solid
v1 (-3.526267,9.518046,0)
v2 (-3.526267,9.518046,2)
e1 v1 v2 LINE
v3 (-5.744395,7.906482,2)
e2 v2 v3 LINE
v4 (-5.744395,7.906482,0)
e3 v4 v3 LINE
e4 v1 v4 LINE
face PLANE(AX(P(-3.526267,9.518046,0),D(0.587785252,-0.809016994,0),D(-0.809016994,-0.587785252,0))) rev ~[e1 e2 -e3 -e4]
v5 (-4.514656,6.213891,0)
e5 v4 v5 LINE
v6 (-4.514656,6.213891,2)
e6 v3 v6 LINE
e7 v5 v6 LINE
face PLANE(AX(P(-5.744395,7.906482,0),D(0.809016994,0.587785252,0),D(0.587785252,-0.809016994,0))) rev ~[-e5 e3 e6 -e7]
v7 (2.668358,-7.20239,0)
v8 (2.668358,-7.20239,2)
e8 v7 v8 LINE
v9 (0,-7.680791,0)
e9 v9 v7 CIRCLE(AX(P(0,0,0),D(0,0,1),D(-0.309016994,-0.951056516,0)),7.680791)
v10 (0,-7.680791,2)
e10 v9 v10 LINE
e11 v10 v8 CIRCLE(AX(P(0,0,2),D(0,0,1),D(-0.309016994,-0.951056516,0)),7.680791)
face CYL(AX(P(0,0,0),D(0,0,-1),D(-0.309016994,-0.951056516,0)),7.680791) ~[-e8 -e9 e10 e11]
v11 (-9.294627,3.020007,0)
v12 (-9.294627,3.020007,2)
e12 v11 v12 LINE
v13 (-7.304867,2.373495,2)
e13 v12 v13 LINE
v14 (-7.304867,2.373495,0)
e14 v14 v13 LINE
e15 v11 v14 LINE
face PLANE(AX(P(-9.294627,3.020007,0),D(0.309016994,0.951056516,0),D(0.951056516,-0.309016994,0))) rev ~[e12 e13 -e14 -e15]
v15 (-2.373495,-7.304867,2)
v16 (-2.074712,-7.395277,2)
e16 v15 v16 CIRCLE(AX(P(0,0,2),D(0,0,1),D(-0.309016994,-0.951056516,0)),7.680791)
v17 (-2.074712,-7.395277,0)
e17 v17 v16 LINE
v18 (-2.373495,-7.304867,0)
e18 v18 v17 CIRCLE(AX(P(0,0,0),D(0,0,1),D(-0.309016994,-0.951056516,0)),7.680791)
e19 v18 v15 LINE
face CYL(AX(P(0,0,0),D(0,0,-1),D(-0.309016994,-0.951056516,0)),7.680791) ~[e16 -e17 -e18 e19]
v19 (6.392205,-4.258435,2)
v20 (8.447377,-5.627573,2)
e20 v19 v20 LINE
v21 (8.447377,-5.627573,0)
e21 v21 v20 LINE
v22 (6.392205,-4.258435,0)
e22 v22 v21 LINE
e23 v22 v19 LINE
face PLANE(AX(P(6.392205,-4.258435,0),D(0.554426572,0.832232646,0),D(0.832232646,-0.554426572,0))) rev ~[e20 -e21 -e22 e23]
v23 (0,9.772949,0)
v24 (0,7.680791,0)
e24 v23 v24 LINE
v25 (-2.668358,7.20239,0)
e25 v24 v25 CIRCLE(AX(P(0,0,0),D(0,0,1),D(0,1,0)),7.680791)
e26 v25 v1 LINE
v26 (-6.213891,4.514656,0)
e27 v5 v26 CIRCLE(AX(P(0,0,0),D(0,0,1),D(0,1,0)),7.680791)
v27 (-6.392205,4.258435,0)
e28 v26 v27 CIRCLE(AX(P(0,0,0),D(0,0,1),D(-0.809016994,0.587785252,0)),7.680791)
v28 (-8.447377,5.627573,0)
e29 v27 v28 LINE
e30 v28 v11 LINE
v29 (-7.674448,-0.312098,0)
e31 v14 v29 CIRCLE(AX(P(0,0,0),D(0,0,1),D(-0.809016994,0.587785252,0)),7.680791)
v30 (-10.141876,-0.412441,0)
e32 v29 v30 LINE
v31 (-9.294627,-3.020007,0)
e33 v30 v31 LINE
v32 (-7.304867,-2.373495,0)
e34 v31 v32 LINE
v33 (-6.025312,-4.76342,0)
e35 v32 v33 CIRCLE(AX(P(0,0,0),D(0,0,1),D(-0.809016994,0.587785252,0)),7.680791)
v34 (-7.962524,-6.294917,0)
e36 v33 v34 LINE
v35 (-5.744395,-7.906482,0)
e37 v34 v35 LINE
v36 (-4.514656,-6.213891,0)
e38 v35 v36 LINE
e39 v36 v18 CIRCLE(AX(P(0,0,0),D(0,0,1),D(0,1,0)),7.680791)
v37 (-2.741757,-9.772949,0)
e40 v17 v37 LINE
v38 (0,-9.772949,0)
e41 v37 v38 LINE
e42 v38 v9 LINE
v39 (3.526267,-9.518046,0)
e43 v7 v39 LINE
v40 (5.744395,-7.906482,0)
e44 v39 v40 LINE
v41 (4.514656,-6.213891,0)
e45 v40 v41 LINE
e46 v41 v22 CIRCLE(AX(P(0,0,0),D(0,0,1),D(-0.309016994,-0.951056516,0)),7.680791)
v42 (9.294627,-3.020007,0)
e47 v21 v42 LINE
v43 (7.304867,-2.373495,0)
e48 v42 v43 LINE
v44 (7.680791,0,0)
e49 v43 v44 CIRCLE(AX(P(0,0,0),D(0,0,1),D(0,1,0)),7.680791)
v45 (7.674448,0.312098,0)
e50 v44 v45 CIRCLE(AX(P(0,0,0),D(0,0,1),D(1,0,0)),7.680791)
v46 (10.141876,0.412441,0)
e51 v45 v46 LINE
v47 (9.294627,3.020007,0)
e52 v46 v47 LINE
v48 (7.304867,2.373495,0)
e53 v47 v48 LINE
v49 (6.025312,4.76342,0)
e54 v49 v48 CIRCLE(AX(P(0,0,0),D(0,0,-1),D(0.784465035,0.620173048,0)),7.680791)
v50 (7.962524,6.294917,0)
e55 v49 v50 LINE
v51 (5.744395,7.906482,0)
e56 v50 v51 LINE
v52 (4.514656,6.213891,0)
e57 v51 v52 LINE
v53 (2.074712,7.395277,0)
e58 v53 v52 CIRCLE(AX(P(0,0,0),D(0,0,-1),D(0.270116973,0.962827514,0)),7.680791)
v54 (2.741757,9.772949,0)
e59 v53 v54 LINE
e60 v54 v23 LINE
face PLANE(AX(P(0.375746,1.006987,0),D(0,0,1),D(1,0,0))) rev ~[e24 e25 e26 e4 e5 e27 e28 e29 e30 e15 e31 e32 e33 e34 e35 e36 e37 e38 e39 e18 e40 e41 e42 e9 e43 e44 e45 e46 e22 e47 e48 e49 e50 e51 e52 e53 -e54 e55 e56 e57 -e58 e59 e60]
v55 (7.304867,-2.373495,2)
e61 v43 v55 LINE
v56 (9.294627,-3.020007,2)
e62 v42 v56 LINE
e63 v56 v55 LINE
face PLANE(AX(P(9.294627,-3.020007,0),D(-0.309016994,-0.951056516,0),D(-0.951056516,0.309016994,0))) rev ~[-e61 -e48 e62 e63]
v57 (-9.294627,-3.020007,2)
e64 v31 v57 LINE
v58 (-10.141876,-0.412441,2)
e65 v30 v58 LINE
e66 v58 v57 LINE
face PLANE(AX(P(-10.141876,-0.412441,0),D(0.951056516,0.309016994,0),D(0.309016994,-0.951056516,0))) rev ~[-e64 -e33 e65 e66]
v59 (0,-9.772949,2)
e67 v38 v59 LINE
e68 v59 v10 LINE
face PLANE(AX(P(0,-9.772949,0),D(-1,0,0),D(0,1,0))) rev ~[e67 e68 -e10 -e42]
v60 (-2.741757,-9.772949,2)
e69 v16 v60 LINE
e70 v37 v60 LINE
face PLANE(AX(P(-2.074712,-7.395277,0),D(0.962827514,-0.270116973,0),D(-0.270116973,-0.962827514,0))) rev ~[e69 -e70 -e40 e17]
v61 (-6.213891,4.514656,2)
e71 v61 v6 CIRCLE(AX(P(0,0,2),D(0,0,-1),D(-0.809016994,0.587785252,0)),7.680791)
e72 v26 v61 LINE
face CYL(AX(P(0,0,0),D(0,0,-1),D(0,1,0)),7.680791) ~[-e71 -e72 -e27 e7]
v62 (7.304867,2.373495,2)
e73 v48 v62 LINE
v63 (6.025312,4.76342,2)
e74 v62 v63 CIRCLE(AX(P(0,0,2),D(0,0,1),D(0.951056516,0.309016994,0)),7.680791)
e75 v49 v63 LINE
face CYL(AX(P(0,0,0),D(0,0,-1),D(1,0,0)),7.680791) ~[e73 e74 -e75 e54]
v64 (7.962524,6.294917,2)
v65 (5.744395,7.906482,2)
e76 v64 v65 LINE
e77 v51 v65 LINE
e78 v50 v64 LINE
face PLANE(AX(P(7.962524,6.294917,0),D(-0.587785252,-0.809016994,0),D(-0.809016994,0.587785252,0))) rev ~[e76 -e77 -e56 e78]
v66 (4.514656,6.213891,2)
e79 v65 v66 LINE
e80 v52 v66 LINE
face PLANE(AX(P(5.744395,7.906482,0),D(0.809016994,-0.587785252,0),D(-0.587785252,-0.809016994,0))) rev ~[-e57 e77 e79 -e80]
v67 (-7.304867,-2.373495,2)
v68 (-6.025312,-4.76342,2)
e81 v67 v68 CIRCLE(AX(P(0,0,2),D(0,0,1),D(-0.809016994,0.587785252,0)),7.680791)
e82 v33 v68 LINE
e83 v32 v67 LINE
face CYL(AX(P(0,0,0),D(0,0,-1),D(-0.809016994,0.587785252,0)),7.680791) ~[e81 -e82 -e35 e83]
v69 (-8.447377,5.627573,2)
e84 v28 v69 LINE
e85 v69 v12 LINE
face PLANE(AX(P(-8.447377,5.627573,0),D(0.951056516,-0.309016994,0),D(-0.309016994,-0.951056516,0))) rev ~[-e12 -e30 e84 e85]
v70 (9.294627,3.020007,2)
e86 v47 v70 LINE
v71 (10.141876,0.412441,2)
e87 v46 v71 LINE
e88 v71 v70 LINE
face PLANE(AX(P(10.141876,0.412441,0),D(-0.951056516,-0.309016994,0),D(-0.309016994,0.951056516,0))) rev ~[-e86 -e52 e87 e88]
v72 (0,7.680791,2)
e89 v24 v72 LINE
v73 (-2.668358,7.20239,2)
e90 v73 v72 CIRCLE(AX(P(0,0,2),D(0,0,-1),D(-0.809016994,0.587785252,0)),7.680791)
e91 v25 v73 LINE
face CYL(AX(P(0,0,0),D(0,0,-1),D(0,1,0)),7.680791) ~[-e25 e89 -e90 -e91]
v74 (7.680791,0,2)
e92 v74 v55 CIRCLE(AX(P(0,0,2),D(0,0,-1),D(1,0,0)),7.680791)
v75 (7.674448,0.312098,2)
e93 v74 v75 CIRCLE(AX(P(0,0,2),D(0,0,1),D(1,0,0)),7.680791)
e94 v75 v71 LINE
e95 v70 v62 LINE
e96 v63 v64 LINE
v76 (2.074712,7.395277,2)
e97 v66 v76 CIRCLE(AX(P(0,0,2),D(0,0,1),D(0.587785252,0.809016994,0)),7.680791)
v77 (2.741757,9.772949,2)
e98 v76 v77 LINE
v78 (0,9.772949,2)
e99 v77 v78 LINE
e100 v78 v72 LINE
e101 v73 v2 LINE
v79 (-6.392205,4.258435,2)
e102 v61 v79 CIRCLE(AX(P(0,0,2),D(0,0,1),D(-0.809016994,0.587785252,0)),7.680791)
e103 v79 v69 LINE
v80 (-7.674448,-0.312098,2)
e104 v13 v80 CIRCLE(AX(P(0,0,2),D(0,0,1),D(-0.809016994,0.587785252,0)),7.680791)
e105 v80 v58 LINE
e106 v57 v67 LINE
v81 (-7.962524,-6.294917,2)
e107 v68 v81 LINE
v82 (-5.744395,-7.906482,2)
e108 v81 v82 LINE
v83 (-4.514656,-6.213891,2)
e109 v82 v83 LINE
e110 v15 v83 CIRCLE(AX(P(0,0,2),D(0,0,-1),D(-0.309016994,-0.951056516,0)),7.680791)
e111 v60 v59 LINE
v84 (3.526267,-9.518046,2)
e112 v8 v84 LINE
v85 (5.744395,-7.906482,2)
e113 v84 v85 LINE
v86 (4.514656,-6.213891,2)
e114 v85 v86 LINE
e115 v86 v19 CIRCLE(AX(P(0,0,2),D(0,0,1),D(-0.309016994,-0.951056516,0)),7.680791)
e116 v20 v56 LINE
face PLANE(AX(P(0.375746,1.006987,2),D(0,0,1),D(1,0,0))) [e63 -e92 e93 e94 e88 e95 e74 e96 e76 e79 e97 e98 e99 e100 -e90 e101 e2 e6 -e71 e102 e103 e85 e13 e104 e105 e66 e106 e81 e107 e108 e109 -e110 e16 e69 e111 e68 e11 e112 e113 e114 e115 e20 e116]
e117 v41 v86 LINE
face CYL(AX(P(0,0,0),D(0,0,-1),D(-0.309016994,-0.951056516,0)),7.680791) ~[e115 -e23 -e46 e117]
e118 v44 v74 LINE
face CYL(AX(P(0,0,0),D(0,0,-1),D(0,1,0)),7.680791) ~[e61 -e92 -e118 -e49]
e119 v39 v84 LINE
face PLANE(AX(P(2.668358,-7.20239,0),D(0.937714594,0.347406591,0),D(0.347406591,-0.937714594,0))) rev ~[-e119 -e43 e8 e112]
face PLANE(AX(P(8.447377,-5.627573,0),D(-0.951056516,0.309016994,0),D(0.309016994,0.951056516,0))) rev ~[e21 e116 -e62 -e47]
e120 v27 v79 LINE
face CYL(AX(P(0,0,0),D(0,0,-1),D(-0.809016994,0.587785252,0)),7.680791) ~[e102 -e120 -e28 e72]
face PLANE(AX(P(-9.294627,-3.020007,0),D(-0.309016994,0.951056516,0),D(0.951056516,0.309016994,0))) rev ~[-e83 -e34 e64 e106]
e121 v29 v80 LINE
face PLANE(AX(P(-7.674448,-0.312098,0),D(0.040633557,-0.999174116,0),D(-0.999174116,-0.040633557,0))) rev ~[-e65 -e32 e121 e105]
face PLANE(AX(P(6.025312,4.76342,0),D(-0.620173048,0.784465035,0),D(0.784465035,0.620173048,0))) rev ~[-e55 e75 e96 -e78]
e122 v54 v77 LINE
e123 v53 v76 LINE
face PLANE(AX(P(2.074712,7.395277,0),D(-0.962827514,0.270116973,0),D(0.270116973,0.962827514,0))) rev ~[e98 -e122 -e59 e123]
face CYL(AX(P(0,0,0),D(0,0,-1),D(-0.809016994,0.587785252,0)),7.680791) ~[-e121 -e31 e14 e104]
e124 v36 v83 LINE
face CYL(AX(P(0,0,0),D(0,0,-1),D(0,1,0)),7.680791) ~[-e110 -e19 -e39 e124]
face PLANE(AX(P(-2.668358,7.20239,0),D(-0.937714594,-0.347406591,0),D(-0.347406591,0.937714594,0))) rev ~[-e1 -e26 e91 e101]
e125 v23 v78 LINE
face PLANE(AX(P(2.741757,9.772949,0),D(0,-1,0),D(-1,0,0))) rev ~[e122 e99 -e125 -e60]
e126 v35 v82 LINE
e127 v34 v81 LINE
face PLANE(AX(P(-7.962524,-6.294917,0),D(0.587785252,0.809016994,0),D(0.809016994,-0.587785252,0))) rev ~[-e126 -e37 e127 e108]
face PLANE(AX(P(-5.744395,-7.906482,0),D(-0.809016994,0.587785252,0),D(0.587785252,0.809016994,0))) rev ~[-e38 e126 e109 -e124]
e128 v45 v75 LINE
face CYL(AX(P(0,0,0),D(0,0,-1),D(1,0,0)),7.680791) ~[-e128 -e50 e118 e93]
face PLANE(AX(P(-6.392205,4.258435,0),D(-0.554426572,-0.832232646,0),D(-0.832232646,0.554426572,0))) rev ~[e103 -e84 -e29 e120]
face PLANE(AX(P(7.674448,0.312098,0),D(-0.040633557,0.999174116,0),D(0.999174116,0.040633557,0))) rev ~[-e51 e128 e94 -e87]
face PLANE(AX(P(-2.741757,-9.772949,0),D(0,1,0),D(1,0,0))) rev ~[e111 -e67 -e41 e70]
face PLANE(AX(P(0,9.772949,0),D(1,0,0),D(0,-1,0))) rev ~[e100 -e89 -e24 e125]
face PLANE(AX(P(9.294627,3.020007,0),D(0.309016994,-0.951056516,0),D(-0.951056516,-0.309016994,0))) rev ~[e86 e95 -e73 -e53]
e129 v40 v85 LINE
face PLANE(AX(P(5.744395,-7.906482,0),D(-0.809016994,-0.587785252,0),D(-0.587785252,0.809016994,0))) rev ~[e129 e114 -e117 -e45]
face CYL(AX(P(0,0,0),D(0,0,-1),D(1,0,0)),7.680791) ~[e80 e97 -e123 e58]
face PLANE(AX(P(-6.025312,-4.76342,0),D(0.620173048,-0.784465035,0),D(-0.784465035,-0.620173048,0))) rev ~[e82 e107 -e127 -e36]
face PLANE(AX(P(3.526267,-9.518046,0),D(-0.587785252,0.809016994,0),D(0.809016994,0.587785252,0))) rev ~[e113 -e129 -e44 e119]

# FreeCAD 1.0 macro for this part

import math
import FreeCAD as App
import Part
import Sketcher
from FreeCAD import Vector

doc = App.newDocument("Part")
body = doc.addObject("PartDesign::Body", "Body")

# Sketch on XY plane
sketch1 = body.newObject("Sketcher::SketchObject", "Sketch")
sketch1.AttachmentSupport = (doc.getObject("XY_Plane"), [""])
sketch1.MapMode = "FlatFace"
sketch1.addGeometry(Part.ArcOfCircle(Part.Circle(Vector(0, 0, 0), Vector(0, 0, 1), 7.7), math.radians(90), math.radians(360)), False)
sketch1.addGeometry(Part.ArcOfCircle(Part.Circle(Vector(0, 0, 0), Vector(0, 0, 1), 7.7), math.radians(0), math.radians(74)), False)
sketch1.addGeometry(Part.LineSegment(Vector(2.1, 7.4, 0), Vector(2.7, 9.8, 0)), False)
sketch1.addGeometry(Part.LineSegment(Vector(2.7, 9.8, 0), Vector(0, 9.8, 0)), False)
sketch1.addGeometry(Part.LineSegment(Vector(0, 9.8, 0), Vector(0, 7.7, 0)), False)
sketch1.addConstraint(Sketcher.Constraint("Tangent", 0, 2, 1, 1))
sketch1.addConstraint(Sketcher.Constraint("Coincident", 1, 2, 2, 1))
sketch1.addConstraint(Sketcher.Constraint("Coincident", 2, 2, 3, 1))
sketch1.addConstraint(Sketcher.Constraint("Coincident", 3, 2, 4, 1))
sketch1.addConstraint(Sketcher.Constraint("Coincident", 4, 2, 0, 1))
sketch1.addConstraint(Sketcher.Constraint("Horizontal", 3))
sketch1.addConstraint(Sketcher.Constraint("Vertical", 4))
sketch1.addConstraint(Sketcher.Constraint("Coincident", 0, 3, -1, 1))
sketch1.addConstraint(Sketcher.Constraint("Equal", 0, 1))
sketch1.addConstraint(Sketcher.Constraint("PointOnObject", 0, 2, -1))
sketch1.addConstraint(Sketcher.Constraint("PointOnObject", 3, 2, -2))
sketch1.addConstraint(Sketcher.Constraint("Radius", 0, 7.680791))
sketch1.addConstraint(Sketcher.Constraint("Distance", 2, 2.469468))
sketch1.addConstraint(Sketcher.Constraint("DistanceX", 3, 2, 3, 1, 2.741757))
sketch1.addConstraint(Sketcher.Constraint("DistanceX", 1, 2, 0, 2, 5.606079))
pad1 = body.newObject("PartDesign::Pad", "Pad")
pad1.Profile = sketch1
pad1.Length = 2
body2 = doc.addObject("PartDesign::Body", "Body001")
doc.recompute()

body2.BaseFeature = body
doc.recompute()

body3 = doc.addObject("PartDesign::Body", "Body002")
body3.BaseFeature = body
body3.Placement = App.Placement(Vector(0, 0, 0), App.Rotation(Vector(0, 0, -1), 36))
boolean = body2.newObject("PartDesign::Boolean", "Boolean")
boolean.Type = "Fuse"
boolean.addObjects([body3])
doc.recompute()

body4 = doc.addObject("PartDesign::Body", "Body003")
body4.BaseFeature = body
body4.Placement = App.Placement(Vector(0, 0, 0), App.Rotation(Vector(0, 0, -1), 72))
boolean2 = body2.newObject("PartDesign::Boolean", "Boolean001")
boolean2.Type = "Fuse"
boolean2.addObjects([body4])
doc.recompute()

body5 = doc.addObject("PartDesign::Body", "Body004")
body5.BaseFeature = body
body5.Placement = App.Placement(Vector(0, 0, 0), App.Rotation(Vector(0, 0, -1), 108))
boolean3 = body2.newObject("PartDesign::Boolean", "Boolean002")
boolean3.Type = "Fuse"
boolean3.addObjects([body5])
doc.recompute()

body6 = doc.addObject("PartDesign::Body", "Body005")
body6.BaseFeature = body
body6.Placement = App.Placement(Vector(0, 0, 0), App.Rotation(Vector(0, 0, -1), 144))
boolean4 = body2.newObject("PartDesign::Boolean", "Boolean003")
boolean4.Type = "Fuse"
boolean4.addObjects([body6])
doc.recompute()

body7 = doc.addObject("PartDesign::Body", "Body006")
body7.BaseFeature = body
body7.Placement = App.Placement(Vector(0, 0, 0), App.Rotation(Vector(0, 0, -1), 180))
boolean5 = body2.newObject("PartDesign::Boolean", "Boolean004")
boolean5.Type = "Fuse"
boolean5.addObjects([body7])
doc.recompute()

body8 = doc.addObject("PartDesign::Body", "Body007")
body8.BaseFeature = body
body8.Placement = App.Placement(Vector(0, 0, 0), App.Rotation(Vector(0, 0, -1), 216))
boolean6 = body2.newObject("PartDesign::Boolean", "Boolean005")
boolean6.Type = "Fuse"
boolean6.addObjects([body8])
doc.recompute()

body9 = doc.addObject("PartDesign::Body", "Body008")
body9.BaseFeature = body
body9.Placement = App.Placement(Vector(0, 0, 0), App.Rotation(Vector(0, 0, -1), 252))
boolean7 = body2.newObject("PartDesign::Boolean", "Boolean006")
boolean7.Type = "Fuse"
boolean7.addObjects([body9])
doc.recompute()

body10 = doc.addObject("PartDesign::Body", "Body009")
body10.BaseFeature = body
body10.Placement = App.Placement(Vector(0, 0, 0), App.Rotation(Vector(0, 0, -1), 288))
boolean8 = body2.newObject("PartDesign::Boolean", "Boolean007")
boolean8.Type = "Fuse"
boolean8.addObjects([body10])
doc.recompute()

body.Placement = App.Placement(Vector(0, 0, 0), App.Rotation(Vector(0, 0, -1), 324))
boolean9 = body2.newObject("PartDesign::Boolean", "Boolean008")
boolean9.Type = "Fuse"
boolean9.addObjects([body])

doc.recompute()
